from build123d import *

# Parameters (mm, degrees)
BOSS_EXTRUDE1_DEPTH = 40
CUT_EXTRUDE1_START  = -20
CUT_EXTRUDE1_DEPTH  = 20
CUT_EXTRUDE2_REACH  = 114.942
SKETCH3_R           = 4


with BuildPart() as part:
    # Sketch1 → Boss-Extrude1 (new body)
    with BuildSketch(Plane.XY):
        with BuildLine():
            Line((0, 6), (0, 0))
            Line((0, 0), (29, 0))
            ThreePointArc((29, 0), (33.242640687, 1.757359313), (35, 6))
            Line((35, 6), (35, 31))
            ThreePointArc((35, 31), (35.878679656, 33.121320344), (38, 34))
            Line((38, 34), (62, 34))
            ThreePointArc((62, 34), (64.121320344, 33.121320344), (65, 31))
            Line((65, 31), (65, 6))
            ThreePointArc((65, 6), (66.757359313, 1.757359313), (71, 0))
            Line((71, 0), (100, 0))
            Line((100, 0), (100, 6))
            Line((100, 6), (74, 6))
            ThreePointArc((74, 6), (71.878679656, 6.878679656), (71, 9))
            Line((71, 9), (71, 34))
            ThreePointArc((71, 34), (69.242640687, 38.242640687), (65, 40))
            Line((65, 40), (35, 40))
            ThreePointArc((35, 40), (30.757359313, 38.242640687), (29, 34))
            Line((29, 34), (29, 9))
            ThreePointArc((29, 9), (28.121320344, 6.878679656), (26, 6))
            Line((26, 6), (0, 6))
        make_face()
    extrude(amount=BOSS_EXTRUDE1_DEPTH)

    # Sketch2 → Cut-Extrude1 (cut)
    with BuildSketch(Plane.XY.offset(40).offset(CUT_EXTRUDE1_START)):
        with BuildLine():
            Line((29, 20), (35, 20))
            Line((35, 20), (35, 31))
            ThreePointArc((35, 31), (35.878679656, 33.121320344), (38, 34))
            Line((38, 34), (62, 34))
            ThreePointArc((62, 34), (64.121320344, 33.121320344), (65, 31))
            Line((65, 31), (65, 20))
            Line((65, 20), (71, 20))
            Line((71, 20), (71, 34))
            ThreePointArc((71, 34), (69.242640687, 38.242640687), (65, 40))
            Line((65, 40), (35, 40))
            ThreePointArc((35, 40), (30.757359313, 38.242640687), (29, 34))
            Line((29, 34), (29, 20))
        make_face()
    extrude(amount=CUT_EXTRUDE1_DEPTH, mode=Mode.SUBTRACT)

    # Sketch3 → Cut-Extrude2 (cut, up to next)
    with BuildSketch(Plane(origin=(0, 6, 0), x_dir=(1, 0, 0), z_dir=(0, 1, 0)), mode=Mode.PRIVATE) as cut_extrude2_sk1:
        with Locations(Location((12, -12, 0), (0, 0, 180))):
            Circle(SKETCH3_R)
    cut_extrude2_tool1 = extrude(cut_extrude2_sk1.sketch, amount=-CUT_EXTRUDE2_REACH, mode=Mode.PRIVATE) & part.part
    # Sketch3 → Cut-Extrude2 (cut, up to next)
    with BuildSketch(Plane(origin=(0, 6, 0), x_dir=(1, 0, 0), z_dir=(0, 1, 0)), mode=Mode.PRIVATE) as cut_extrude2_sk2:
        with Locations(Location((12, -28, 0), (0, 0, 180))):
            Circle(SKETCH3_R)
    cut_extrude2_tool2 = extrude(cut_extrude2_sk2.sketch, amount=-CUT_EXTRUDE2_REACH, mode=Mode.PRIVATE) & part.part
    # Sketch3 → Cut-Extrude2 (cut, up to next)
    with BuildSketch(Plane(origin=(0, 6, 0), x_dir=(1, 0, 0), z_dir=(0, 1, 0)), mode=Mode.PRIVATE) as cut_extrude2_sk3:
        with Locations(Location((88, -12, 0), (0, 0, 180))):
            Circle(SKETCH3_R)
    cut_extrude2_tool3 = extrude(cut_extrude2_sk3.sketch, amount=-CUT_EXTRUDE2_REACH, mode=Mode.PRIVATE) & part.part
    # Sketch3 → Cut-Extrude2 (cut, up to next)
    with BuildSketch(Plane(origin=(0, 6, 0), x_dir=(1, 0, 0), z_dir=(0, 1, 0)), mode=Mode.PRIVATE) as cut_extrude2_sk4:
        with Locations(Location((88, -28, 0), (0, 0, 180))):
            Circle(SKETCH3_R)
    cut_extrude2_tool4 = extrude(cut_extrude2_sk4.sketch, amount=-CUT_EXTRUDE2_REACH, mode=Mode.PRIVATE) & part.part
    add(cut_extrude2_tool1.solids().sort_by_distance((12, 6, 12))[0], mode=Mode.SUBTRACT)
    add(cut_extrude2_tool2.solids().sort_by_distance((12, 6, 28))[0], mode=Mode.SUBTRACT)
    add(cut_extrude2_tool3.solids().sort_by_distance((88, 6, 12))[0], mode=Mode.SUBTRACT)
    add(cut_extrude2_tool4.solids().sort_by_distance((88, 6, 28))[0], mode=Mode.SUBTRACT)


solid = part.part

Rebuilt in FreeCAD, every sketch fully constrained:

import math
import FreeCAD as App
import Part
import Sketcher
from FreeCAD import Vector

doc = App.newDocument("Part")
body = doc.addObject("PartDesign::Body", "Body")

# Sketch on XY plane
sketch1 = body.newObject("Sketcher::SketchObject", "Sketch")
sketch1.AttachmentSupport = (doc.getObject("XY_Plane"), [""])
sketch1.MapMode = "FlatFace"
sketch1.addGeometry([
    Part.LineSegment(Vector(0, 6, 0), Vector(0, 0, 0)),  # 0
    Part.LineSegment(Vector(0, 0, 0), Vector(29, 0, 0)),  # 1
    Part.ArcOfCircle(Part.Circle(Vector(29, 6, 0), Vector(0, 0, 1), 6), math.radians(-90), math.radians(0)),  # 2
    Part.LineSegment(Vector(35, 6, 0), Vector(35, 31, 0)),  # 3
    Part.ArcOfCircle(Part.Circle(Vector(38, 31, 0), Vector(0, 0, 1), 3), math.radians(90), math.radians(180)),  # 4
    Part.LineSegment(Vector(38, 34, 0), Vector(62, 34, 0)),  # 5
    Part.ArcOfCircle(Part.Circle(Vector(62, 31, 0), Vector(0, 0, 1), 3), math.radians(0), math.radians(90)),  # 6
    Part.LineSegment(Vector(65, 31, 0), Vector(65, 6, 0)),  # 7
    Part.ArcOfCircle(Part.Circle(Vector(71, 6, 0), Vector(0, 0, 1), 6), math.radians(180), math.radians(270)),  # 8
    Part.LineSegment(Vector(71, 0, 0), Vector(100, 0, 0)),  # 9
    Part.LineSegment(Vector(100, 0, 0), Vector(100, 6, 0)),  # 10
    Part.LineSegment(Vector(100, 6, 0), Vector(74, 6, 0)),  # 11
    Part.ArcOfCircle(Part.Circle(Vector(74, 9, 0), Vector(0, 0, 1), 3), math.radians(180), math.radians(270)),  # 12
    Part.LineSegment(Vector(71, 9, 0), Vector(71, 34, 0)),  # 13
    Part.ArcOfCircle(Part.Circle(Vector(65, 34, 0), Vector(0, 0, 1), 6), math.radians(0), math.radians(90)),  # 14
    Part.LineSegment(Vector(65, 40, 0), Vector(35, 40, 0)),  # 15
    Part.ArcOfCircle(Part.Circle(Vector(35, 34, 0), Vector(0, 0, 1), 6), math.radians(90), math.radians(180)),  # 16
    Part.LineSegment(Vector(29, 34, 0), Vector(29, 9, 0)),  # 17
    Part.ArcOfCircle(Part.Circle(Vector(26, 9, 0), Vector(0, 0, 1), 3), math.radians(-90), math.radians(0)),  # 18
    Part.LineSegment(Vector(26, 6, 0), Vector(0, 6, 0)),  # 19
], False)
sketch1.addConstraint([
    Sketcher.Constraint("Coincident", 0, 2, 1, 1),
    Sketcher.Constraint("Tangent", 1, 2, 2, 1),
    Sketcher.Constraint("Tangent", 2, 2, 3, 1),
    Sketcher.Constraint("Tangent", 3, 2, 4, 2),
    Sketcher.Constraint("Tangent", 4, 1, 5, 1),
    Sketcher.Constraint("Tangent", 5, 2, 6, 2),
    Sketcher.Constraint("Tangent", 6, 1, 7, 1),
    Sketcher.Constraint("Tangent", 7, 2, 8, 1),
    Sketcher.Constraint("Tangent", 8, 2, 9, 1),
    Sketcher.Constraint("Coincident", 9, 2, 10, 1),
    Sketcher.Constraint("Coincident", 10, 2, 11, 1),
    Sketcher.Constraint("Tangent", 11, 2, 12, 2),
    Sketcher.Constraint("Tangent", 12, 1, 13, 1),
    Sketcher.Constraint("Tangent", 13, 2, 14, 1),
    Sketcher.Constraint("Tangent", 14, 2, 15, 1),
    Sketcher.Constraint("Tangent", 15, 2, 16, 1),
    Sketcher.Constraint("Tangent", 16, 2, 17, 1),
    Sketcher.Constraint("Tangent", 17, 2, 18, 2),
    Sketcher.Constraint("Tangent", 18, 1, 19, 1),
    Sketcher.Constraint("Coincident", 19, 2, 0, 1),
    Sketcher.Constraint("Vertical", 0),
    Sketcher.Constraint("Horizontal", 1),
    Sketcher.Constraint("Vertical", 3),
    Sketcher.Constraint("Horizontal", 5),
    Sketcher.Constraint("Vertical", 7),
    Sketcher.Constraint("Horizontal", 9),
    Sketcher.Constraint("Vertical", 10),
    Sketcher.Constraint("Horizontal", 11),
    Sketcher.Constraint("Vertical", 13),
    Sketcher.Constraint("Horizontal", 15),
    Sketcher.Constraint("Vertical", 17),
    Sketcher.Constraint("Horizontal", 19),
    Sketcher.Constraint("Coincident", 0, 2, -1, 1),
    Sketcher.Constraint("Equal", 4, 6),
    Sketcher.Constraint("Equal", 2, 8),
    Sketcher.Constraint("Equal", 6, 12),
    Sketcher.Constraint("Equal", 8, 14),
    Sketcher.Constraint("Equal", 14, 16),
    Sketcher.Constraint("Equal", 12, 18),
    Sketcher.Constraint("PointOnObject", 8, 2, -1),
    Sketcher.Constraint("Horizontal", 12, 3, 18, 3),
    Sketcher.Constraint("Horizontal", 16, 3, 4, 1),
    Sketcher.Constraint("Horizontal", 7, 2, 10, 2),
    Sketcher.Constraint("Vertical", 16, 3, 2, 2),
    Sketcher.Constraint("Vertical", 14, 3, 6, 1),
    Sketcher.Constraint("Equal", 1, 9),
    Sketcher.Constraint("Radius", 2, 6.0),
    Sketcher.Constraint("Radius", 4, 3.0),
    Sketcher.Constraint("DistanceX", 1, 1, 1, 2, 29.0),
    Sketcher.Constraint("DistanceX", 5, 1, 5, 2, 24.0),
    Sketcher.Constraint("DistanceY", 3, 1, 3, 2, 25.0),
])
pad1 = body.newObject("PartDesign::Pad", "Pad")
pad1.Profile = sketch1
pad1.Length = 40

# Sketch on XY plane
sketch2 = body.newObject("Sketcher::SketchObject", "Sketch001")
sketch2.AttachmentSupport = (doc.getObject("XY_Plane"), [""])
sketch2.MapMode = "FlatFace"
sketch2.AttachmentOffset = App.Placement(Vector(0, 0, 20), App.Rotation())
sketch2.addGeometry([
    Part.LineSegment(Vector(29, 20, 0), Vector(35, 20, 0)),  # 0
    Part.LineSegment(Vector(35, 20, 0), Vector(35, 31, 0)),  # 1
    Part.ArcOfCircle(Part.Circle(Vector(38, 31, 0), Vector(0, 0, 1), 3), math.radians(90), math.radians(180)),  # 2
    Part.LineSegment(Vector(38, 34, 0), Vector(62, 34, 0)),  # 3
    Part.ArcOfCircle(Part.Circle(Vector(62, 31, 0), Vector(0, 0, 1), 3), math.radians(0), math.radians(90)),  # 4
    Part.LineSegment(Vector(65, 31, 0), Vector(65, 20, 0)),  # 5
    Part.LineSegment(Vector(65, 20, 0), Vector(71, 20, 0)),  # 6
    Part.LineSegment(Vector(71, 20, 0), Vector(71, 34, 0)),  # 7
    Part.ArcOfCircle(Part.Circle(Vector(65, 34, 0), Vector(0, 0, 1), 6), math.radians(0), math.radians(90)),  # 8
    Part.LineSegment(Vector(65, 40, 0), Vector(35, 40, 0)),  # 9
    Part.ArcOfCircle(Part.Circle(Vector(35, 34, 0), Vector(0, 0, 1), 6), math.radians(90), math.radians(180)),  # 10
    Part.LineSegment(Vector(29, 34, 0), Vector(29, 20, 0)),  # 11
], False)
sketch2.addConstraint([
    Sketcher.Constraint("Coincident", 0, 2, 1, 1),
    Sketcher.Constraint("Tangent", 1, 2, 2, 2),
    Sketcher.Constraint("Tangent", 2, 1, 3, 1),
    Sketcher.Constraint("Tangent", 3, 2, 4, 2),
    Sketcher.Constraint("Tangent", 4, 1, 5, 1),
    Sketcher.Constraint("Coincident", 5, 2, 6, 1),
    Sketcher.Constraint("Coincident", 6, 2, 7, 1),
    Sketcher.Constraint("Tangent", 7, 2, 8, 1),
    Sketcher.Constraint("Tangent", 8, 2, 9, 1),
    Sketcher.Constraint("Tangent", 9, 2, 10, 1),
    Sketcher.Constraint("Tangent", 10, 2, 11, 1),
    Sketcher.Constraint("Coincident", 11, 2, 0, 1),
    Sketcher.Constraint("Horizontal", 0),
    Sketcher.Constraint("Vertical", 1),
    Sketcher.Constraint("Horizontal", 3),
    Sketcher.Constraint("Vertical", 5),
    Sketcher.Constraint("Horizontal", 6),
    Sketcher.Constraint("Vertical", 7),
    Sketcher.Constraint("Horizontal", 9),
    Sketcher.Constraint("Vertical", 11),
    Sketcher.Constraint("Equal", 2, 4),
    Sketcher.Constraint("Equal", 8, 10),
    Sketcher.Constraint("Horizontal", 10, 3, 2, 1),
    Sketcher.Constraint("Horizontal", 0, 2, 5, 2),
    Sketcher.Constraint("Vertical", 10, 3, 0, 2),
    Sketcher.Constraint("Vertical", 8, 3, 4, 1),
    Sketcher.Constraint("Radius", 2, 3.0),
    Sketcher.Constraint("Radius", 8, 6.0),
    Sketcher.Constraint("DistanceX", 3, 1, 3, 2, 24.0),
    Sketcher.Constraint("DistanceY", 1, 1, 1, 2, 11.0),
    Sketcher.Constraint("DistanceX", -1, 1, 2, 3, 38.0),
    Sketcher.Constraint("DistanceY", -1, 1, 2, 3, 31.0),
])
pocket1 = body.newObject("PartDesign::Pocket", "Pocket")
pocket1.Profile = sketch2
pocket1.Length = 20
pocket1.Reversed = True

# Sketch on XZ plane
sketch3 = body.newObject("Sketcher::SketchObject", "Sketch002")
sketch3.AttachmentSupport = (doc.getObject("XZ_Plane"), [""])
sketch3.MapMode = "FlatFace"
sketch3.AttachmentOffset = App.Placement(Vector(0, 0, -6), App.Rotation())
sketch3.addGeometry(Part.Circle(Vector(12, 12, 0), Vector(0, 0, 1), 4), False)
sketch3.addConstraint([
    Sketcher.Constraint("Diameter", 0, 8.0),
    Sketcher.Constraint("DistanceX", -1, 1, 0, 3, 12.0),
    Sketcher.Constraint("DistanceY", -1, 1, 0, 3, 12.0),
])
pocket2 = body.newObject("PartDesign::Pocket", "Pocket001")
pocket2.Profile = sketch3
pocket2.Type = "UpToFirst"
pocket2.Reversed = True

# Sketch on XZ plane
sketch4 = body.newObject("Sketcher::SketchObject", "Sketch003")
sketch4.AttachmentSupport = (doc.getObject("XZ_Plane"), [""])
sketch4.MapMode = "FlatFace"
sketch4.AttachmentOffset = App.Placement(Vector(0, 0, -6), App.Rotation())
sketch4.addGeometry(Part.Circle(Vector(12, 28, 0), Vector(0, 0, 1), 4), False)
sketch4.addConstraint([
    Sketcher.Constraint("Diameter", 0, 8.0),
    Sketcher.Constraint("DistanceX", -1, 1, 0, 3, 12.0),
    Sketcher.Constraint("DistanceY", -1, 1, 0, 3, 28.0),
])
pocket3 = body.newObject("PartDesign::Pocket", "Pocket002")
pocket3.Profile = sketch4
pocket3.Type = "UpToFirst"
pocket3.Reversed = True

# Sketch on XZ plane
sketch5 = body.newObject("Sketcher::SketchObject", "Sketch004")
sketch5.AttachmentSupport = (doc.getObject("XZ_Plane"), [""])
sketch5.MapMode = "FlatFace"
sketch5.AttachmentOffset = App.Placement(Vector(0, 0, -6), App.Rotation())
sketch5.addGeometry(Part.Circle(Vector(88, 12, 0), Vector(0, 0, 1), 4), False)
sketch5.addConstraint([
    Sketcher.Constraint("Diameter", 0, 8.0),
    Sketcher.Constraint("DistanceX", -1, 1, 0, 3, 88.0),
    Sketcher.Constraint("DistanceY", -1, 1, 0, 3, 12.0),
])
pocket4 = body.newObject("PartDesign::Pocket", "Pocket003")
pocket4.Profile = sketch5
pocket4.Type = "UpToFirst"
pocket4.Reversed = True

# Sketch on XZ plane
sketch6 = body.newObject("Sketcher::SketchObject", "Sketch005")
sketch6.AttachmentSupport = (doc.getObject("XZ_Plane"), [""])
sketch6.MapMode = "FlatFace"
sketch6.AttachmentOffset = App.Placement(Vector(0, 0, -6), App.Rotation())
sketch6.addGeometry(Part.Circle(Vector(88, 28, 0), Vector(0, 0, 1), 4), False)
sketch6.addConstraint([
    Sketcher.Constraint("Diameter", 0, 8.0),
    Sketcher.Constraint("DistanceX", -1, 1, 0, 3, 88.0),
    Sketcher.Constraint("DistanceY", -1, 1, 0, 3, 28.0),
])
pocket5 = body.newObject("PartDesign::Pocket", "Pocket004")
pocket5.Profile = sketch6
pocket5.Type = "UpToFirst"
pocket5.Reversed = True

doc.recompute()
